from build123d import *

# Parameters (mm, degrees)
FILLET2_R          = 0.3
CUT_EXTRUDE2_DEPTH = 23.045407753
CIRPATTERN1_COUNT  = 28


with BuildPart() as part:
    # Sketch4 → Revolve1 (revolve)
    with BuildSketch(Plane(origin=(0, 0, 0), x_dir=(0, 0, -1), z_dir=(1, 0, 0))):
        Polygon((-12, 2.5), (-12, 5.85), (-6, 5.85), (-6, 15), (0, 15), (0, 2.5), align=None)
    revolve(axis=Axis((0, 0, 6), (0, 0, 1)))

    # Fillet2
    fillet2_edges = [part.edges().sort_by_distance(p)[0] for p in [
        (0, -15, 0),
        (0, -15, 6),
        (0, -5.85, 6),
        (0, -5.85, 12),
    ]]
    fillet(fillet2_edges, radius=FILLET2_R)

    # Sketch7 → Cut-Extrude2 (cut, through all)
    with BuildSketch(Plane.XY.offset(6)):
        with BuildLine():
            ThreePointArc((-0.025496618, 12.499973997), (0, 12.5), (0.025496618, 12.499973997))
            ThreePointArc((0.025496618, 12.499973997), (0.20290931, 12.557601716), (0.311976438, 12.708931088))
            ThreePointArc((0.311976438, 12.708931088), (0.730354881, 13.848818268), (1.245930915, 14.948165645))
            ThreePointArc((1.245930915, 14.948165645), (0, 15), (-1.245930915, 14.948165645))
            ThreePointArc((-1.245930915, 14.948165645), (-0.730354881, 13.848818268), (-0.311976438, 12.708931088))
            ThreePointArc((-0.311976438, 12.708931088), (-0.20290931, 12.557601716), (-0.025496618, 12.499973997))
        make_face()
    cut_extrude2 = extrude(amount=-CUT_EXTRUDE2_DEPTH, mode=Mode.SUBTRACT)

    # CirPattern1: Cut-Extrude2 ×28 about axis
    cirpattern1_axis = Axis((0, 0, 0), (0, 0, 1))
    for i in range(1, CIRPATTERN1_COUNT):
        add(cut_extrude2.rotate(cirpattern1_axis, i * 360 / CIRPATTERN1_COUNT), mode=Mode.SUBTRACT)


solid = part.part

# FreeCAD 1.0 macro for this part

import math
import FreeCAD as App
import Part
import Sketcher

V = App.Vector


def edges_at(feature, points):
    """Names of the edges that pass closest to the given points."""
    edges = feature.Shape.Edges
    near = lambda p: min(range(len(edges)), key=lambda i: edges[i].distToShape(Part.Vertex(*p))[0])
    return sorted({f"Edge{near(p) + 1}" for p in points})


def add_polygon(sketch, points):
    """Adds a closed chain of lines whose ends are joined by coincident constraints."""
    first, n = sketch.GeometryCount, len(points)
    for a, b in zip(points, points[1:] + points[:1]):
        sketch.addGeometry(Part.LineSegment(App.Vector(*a, 0), App.Vector(*b, 0)), False)
    for i in range(n):
        sketch.addConstraint(Sketcher.Constraint("Coincident", first + i, 2, first + (i + 1) % n, 1))

doc = App.newDocument("Part")
body = doc.addObject("PartDesign::Body", "Body")

sketch1 = body.newObject("Sketcher::SketchObject", "Sketch")
sketch1.AttachmentSupport = (doc.getObject("YZ_Plane"), [""])
sketch1.MapMode = "FlatFace"
add_polygon(sketch1, [(5.8, 12), (2.5, 12), (2.5, 0), (15, 0), (15, 6), (5.8, 6)])
sketch1.addConstraint(Sketcher.Constraint("Horizontal", 0))
sketch1.addConstraint(Sketcher.Constraint("Vertical", 1))
sketch1.addConstraint(Sketcher.Constraint("Horizontal", 2))
sketch1.addConstraint(Sketcher.Constraint("Vertical", 3))
sketch1.addConstraint(Sketcher.Constraint("Horizontal", 4))
sketch1.addConstraint(Sketcher.Constraint("Vertical", 5))
sketch1.addConstraint(Sketcher.Constraint("PointOnObject", 1, 2, -1))
sketch1.addConstraint(Sketcher.Constraint("Equal", 3, 5))
sketch1.addConstraint(Sketcher.Constraint("DistanceY", 1, 2, 1, 1, 12.0))
sketch1.addConstraint(Sketcher.Constraint("DistanceX", 2, 1, 2, 2, 12.5))
sketch1.addConstraint(Sketcher.Constraint("DistanceX", -1, 1, 2, 2, 15.0))
sketch1.addConstraint(Sketcher.Constraint("DistanceX", 0, 2, 0, 1, 3.35))
revolution = body.newObject("PartDesign::Revolution", "Revolution")
revolution.Profile = sketch1
revolution.ReferenceAxis = (sketch1, ["V_Axis"])
revolution.Angle = 360
doc.recompute()

fillet = body.newObject("PartDesign::Fillet", "Fillet")
fillet.Base = (revolution, edges_at(revolution, [
    (0, -15, 0),
    (0, -15, 6),
    (0, -5.85, 6),
    (0, -5.85, 12),
]))
fillet.Radius = 0.3

sketch2 = body.newObject("Sketcher::SketchObject", "Sketch001")
sketch2.AttachmentSupport = (doc.getObject("XY_Plane"), [""])
sketch2.MapMode = "FlatFace"
sketch2.AttachmentOffset = App.Placement(V(0, 0, 6), App.Rotation())
sketch2.addGeometry(Part.ArcOfCircle(Part.Circle(V(0, 0, 0), V(0, 0, 1), 12.5), math.radians(89.88), math.radians(90.12)), False)
sketch2.addGeometry(Part.ArcOfCircle(Part.Circle(V(0.03, 12.8, 0), V(0, 0, 1), 0.3), math.radians(-90), math.radians(-18)), False)
sketch2.addGeometry(Part.ArcOfCircle(Part.Circle(V(13.65, 8.46, 0), V(0, 0, 1), 14), math.radians(152.39), math.radians(162.33)), False)
sketch2.addGeometry(Part.ArcOfCircle(Part.Circle(V(0, 0, 0), V(0, 0, 1), 15), math.radians(85.24), math.radians(94.76)), False)
sketch2.addGeometry(Part.ArcOfCircle(Part.Circle(V(-13.65, 8.46, 0), V(0, 0, 1), 14), math.radians(17.67), math.radians(27.61)), False)
sketch2.addGeometry(Part.ArcOfCircle(Part.Circle(V(-0.03, 12.8, 0), V(0, 0, 1), 0.3), math.radians(-162), math.radians(-90)), False)
sketch2.addConstraint(Sketcher.Constraint("Tangent", 0, 1, 1, 1))
sketch2.addConstraint(Sketcher.Constraint("Tangent", 1, 2, 2, 2))
sketch2.addConstraint(Sketcher.Constraint("Coincident", 2, 1, 3, 1))
sketch2.addConstraint(Sketcher.Constraint("Coincident", 3, 2, 4, 2))
sketch2.addConstraint(Sketcher.Constraint("Tangent", 4, 1, 5, 1))
sketch2.addConstraint(Sketcher.Constraint("Tangent", 5, 2, 0, 2))
sketch2.addConstraint(Sketcher.Constraint("Coincident", 3, 3, -1, 1))
sketch2.addConstraint(Sketcher.Constraint("Equal", 2, 4))
sketch2.addConstraint(Sketcher.Constraint("Equal", 1, 5))
sketch2.addConstraint(Sketcher.Constraint("Symmetric", 2, 3, 4, 3, -2))
sketch2.addConstraint(Sketcher.Constraint("PointOnObject", 0, 3, -2))
sketch2.addConstraint(Sketcher.Constraint("Radius", 2, 14.0))
sketch2.addConstraint(Sketcher.Constraint("Radius", 3, 15.0))
sketch2.addConstraint(Sketcher.Constraint("Radius", 0, 12.500062))
sketch2.addConstraint(Sketcher.Constraint("Radius", 1, 0.300022))
sketch2.addConstraint(Sketcher.Constraint("DistanceX", -1, 1, 1, 3, 0.026109))
sketch2.addConstraint(Sketcher.Constraint("DistanceY", -1, 1, 2, 3, 8.459581))
sketch2.addConstraint(Sketcher.Constraint("DistanceY", -1, 1, 1, 2, 12.708931))
pocket1 = body.newObject("PartDesign::Pocket", "Pocket")
pocket1.Profile = sketch2
pocket1.Type = "ThroughAll"
doc.recompute()

polarpattern = body.newObject("PartDesign::PolarPattern", "PolarPattern")
polarpattern.Originals = [pocket1]
polarpattern.Axis = (doc.getObject("Z_Axis"), [""])
polarpattern.Angle = 360
polarpattern.Occurrences = 28
body.Tip = polarpattern

doc.recompute()
